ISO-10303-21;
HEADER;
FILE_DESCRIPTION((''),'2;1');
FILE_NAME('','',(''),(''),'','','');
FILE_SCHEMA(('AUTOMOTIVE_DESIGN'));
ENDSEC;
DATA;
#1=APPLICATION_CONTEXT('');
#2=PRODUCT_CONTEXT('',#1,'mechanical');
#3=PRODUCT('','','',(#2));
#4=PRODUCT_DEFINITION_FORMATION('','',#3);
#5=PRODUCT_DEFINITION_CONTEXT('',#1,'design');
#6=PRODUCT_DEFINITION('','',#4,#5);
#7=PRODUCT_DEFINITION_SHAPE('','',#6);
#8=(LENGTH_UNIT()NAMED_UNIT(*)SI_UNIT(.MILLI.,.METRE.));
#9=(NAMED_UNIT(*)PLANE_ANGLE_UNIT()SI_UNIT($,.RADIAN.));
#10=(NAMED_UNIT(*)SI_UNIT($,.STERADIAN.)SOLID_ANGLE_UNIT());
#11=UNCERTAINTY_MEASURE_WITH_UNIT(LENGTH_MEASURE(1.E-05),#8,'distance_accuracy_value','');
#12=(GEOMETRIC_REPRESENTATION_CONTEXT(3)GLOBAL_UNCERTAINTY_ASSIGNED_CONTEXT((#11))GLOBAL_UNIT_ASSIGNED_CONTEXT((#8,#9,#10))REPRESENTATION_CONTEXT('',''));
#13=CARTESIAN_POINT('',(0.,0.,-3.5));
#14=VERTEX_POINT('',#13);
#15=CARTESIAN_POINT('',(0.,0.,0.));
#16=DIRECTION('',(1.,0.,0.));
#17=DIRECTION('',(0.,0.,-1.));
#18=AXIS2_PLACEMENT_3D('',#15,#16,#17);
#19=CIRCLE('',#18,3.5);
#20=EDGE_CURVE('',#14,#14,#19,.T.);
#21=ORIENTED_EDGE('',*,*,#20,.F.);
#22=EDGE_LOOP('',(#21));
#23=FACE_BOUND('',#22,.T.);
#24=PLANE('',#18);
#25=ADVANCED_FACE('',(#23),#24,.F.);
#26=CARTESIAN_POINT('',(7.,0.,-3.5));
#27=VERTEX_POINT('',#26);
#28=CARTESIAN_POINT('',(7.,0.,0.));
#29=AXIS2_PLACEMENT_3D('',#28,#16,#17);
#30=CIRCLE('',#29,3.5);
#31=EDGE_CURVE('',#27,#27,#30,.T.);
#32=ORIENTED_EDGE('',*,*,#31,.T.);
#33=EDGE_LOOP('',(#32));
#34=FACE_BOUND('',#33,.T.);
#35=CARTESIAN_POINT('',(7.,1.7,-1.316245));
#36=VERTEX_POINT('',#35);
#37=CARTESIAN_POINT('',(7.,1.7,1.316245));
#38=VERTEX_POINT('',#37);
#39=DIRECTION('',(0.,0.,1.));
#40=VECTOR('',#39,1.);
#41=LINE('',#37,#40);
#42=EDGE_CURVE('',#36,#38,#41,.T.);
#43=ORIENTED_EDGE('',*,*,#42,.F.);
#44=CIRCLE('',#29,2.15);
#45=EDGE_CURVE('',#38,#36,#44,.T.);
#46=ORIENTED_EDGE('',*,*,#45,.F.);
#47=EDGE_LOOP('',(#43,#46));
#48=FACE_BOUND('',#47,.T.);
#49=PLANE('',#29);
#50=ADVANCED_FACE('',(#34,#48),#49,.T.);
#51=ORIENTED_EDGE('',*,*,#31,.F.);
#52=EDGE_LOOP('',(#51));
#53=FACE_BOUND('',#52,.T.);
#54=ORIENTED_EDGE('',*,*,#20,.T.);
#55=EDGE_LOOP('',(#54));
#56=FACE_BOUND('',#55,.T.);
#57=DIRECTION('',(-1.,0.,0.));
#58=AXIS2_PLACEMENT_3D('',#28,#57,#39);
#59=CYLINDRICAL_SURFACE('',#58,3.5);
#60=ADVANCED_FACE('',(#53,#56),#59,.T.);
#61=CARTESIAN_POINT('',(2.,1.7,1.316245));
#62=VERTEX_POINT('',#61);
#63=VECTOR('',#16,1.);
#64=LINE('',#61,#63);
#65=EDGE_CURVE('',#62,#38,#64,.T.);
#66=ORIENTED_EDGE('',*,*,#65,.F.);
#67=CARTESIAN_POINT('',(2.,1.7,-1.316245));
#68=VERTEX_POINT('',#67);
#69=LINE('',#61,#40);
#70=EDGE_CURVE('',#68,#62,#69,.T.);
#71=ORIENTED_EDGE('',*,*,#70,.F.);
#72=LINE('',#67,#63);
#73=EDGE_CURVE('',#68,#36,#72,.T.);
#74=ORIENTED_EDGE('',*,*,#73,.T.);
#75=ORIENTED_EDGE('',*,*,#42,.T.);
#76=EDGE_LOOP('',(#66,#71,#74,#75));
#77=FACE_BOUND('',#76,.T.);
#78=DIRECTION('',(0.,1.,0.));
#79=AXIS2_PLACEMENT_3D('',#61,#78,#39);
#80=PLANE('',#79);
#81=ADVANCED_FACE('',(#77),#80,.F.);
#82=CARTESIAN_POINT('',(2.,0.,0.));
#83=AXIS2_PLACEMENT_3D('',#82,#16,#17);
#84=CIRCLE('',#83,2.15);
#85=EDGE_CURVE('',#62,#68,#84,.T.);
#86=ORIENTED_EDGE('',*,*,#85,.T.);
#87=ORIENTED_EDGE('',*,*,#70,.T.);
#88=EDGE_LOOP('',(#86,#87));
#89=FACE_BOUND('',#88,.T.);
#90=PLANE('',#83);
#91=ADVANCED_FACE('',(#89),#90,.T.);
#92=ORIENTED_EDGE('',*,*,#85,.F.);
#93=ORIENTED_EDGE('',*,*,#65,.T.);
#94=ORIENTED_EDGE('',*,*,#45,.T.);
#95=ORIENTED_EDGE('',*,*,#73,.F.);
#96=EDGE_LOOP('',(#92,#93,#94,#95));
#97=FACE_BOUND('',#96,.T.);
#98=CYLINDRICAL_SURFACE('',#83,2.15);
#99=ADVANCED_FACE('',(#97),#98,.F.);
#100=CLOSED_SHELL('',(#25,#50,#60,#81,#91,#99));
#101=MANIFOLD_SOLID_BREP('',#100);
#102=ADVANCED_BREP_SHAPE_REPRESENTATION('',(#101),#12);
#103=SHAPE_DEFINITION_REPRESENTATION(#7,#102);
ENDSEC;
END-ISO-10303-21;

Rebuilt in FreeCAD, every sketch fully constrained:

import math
import FreeCAD as App
import Part
import Sketcher
from FreeCAD import Vector

doc = App.newDocument("Part")
body = doc.addObject("PartDesign::Body", "Body")

# Sketch on YZ plane
sketch1 = doc.addObject("Sketcher::SketchObject", "Sketch")
body.addObject(sketch1)
sketch1.AttachmentSupport = (doc.YZ_Plane, [""])
sketch1.MapMode = "FlatFace"
sketch1.addGeometry(Part.Circle(Vector(0, 0, 0), Vector(0, 0, 1), 3.5), False)
sketch1.addConstraint([
    Sketcher.Constraint("Coincident", 0, 3, -1, 1),
    Sketcher.Constraint("Diameter", 0, 7.0),
])
pad1 = doc.addObject("PartDesign::Pad", "Pad")
body.addObject(pad1)
pad1.Profile = sketch1
pad1.Length = 7

# Sketch on YZ plane
sketch2 = doc.addObject("Sketcher::SketchObject", "Sketch001")
body.addObject(sketch2)
sketch2.AttachmentSupport = (doc.YZ_Plane, [""])
sketch2.MapMode = "FlatFace"
sketch2.AttachmentOffset = App.Placement(Vector(0, 0, 7), App.Rotation())
sketch2.addGeometry([
    Part.LineSegment(Vector(1.7, -1.3, 0), Vector(1.7, 1.3, 0)),
    Part.ArcOfCircle(Part.Circle(Vector(0, 0, 0), Vector(0, 0, 1), 2.1), math.radians(38), math.radians(322)),
], False)
sketch2.addConstraint([
    Sketcher.Constraint("Coincident", 0, 1, 1, 2),
    Sketcher.Constraint("Coincident", 1, 1, 0, 2),
    Sketcher.Constraint("Vertical", 0),
    Sketcher.Constraint("Coincident", 1, 3, -1, 1),
    Sketcher.Constraint("Radius", 1, 2.15),
    Sketcher.Constraint("DistanceX", -1, 1, 0, 1, 1.7),
])
pocket1 = doc.addObject("PartDesign::Pocket", "Pocket")
body.addObject(pocket1)
pocket1.Profile = sketch2
pocket1.Length = 5

doc.recompute()
